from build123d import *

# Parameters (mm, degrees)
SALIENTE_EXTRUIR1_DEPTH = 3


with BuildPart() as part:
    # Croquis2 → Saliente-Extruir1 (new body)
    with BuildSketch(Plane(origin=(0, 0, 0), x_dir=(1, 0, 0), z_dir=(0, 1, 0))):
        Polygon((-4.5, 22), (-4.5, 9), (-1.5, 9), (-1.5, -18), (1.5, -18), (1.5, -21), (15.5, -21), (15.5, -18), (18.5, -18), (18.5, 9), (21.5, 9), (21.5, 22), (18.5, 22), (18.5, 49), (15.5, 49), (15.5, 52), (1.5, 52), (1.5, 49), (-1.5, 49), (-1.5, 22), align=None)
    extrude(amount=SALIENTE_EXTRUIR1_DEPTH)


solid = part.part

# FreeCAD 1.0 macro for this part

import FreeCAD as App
import Part
import Sketcher
Q = App.Units.Quantity


def add_polygon(sketch, points):
    """Adds a closed chain of lines whose ends are joined by coincident constraints."""
    first, n = sketch.GeometryCount, len(points)
    for a, b in zip(points, points[1:] + points[:1]):
        sketch.addGeometry(Part.LineSegment(App.Vector(*a, 0), App.Vector(*b, 0)), False)
    for i in range(n):
        sketch.addConstraint(Sketcher.Constraint("Coincident", first + i, 2, first + (i + 1) % n, 1))

doc = App.newDocument("Part")
params = doc.addObject("Spreadsheet::Sheet", "Params")
for row, (alias, value) in enumerate([
    ("sketch1_width", "3 mm"),
    ("sketch1_width2", "14 mm"),
    ("sketch1_height", "13 mm"),
    ("sketch1_height2", "27 mm"),
    ("pad1_length", "3 mm"),
], start=1):
    params.set(f"A{row}", alias)
    params.set(f"B{row}", "=" + value)
    params.setAlias(f"B{row}", alias)

body = doc.addObject("PartDesign::Body", "Body")

# Sketch on XZ plane
sketch1 = body.newObject("Sketcher::SketchObject", "Sketch")
sketch1.AttachmentSupport = (doc.getObject("XZ_Plane"), [""])
sketch1.MapMode = "FlatFace"
add_polygon(sketch1, [(-4.5, -22), (-4.5, -9), (-1.5, -9), (-1.5, 18), (1.5, 18), (1.5, 21), (15.5, 21), (15.5, 18), (18.5, 18), (18.5, -9), (21.5, -9), (21.5, -22), (18.5, -22), (18.5, -49), (15.5, -49), (15.5, -52), (1.5, -52), (1.5, -49), (-1.5, -49), (-1.5, -22)])  # lines 0-19
sketch1.addConstraint([
    Sketcher.Constraint("Vertical", 0),
    Sketcher.Constraint("Horizontal", 1),
    Sketcher.Constraint("Vertical", 2),
    Sketcher.Constraint("Horizontal", 3),
    Sketcher.Constraint("Vertical", 4),
    Sketcher.Constraint("Horizontal", 5),
    Sketcher.Constraint("Vertical", 6),
    Sketcher.Constraint("Horizontal", 7),
    Sketcher.Constraint("Vertical", 8),
    Sketcher.Constraint("Horizontal", 9),
    Sketcher.Constraint("Vertical", 10),
    Sketcher.Constraint("Horizontal", 11),
    Sketcher.Constraint("Vertical", 12),
    Sketcher.Constraint("Horizontal", 13),
    Sketcher.Constraint("Vertical", 14),
    Sketcher.Constraint("Horizontal", 15),
    Sketcher.Constraint("Vertical", 16),
    Sketcher.Constraint("Horizontal", 17),
    Sketcher.Constraint("Vertical", 18),
    Sketcher.Constraint("Horizontal", 19),
    Sketcher.Constraint("Horizontal", 3, 2, 6, 2),
    Sketcher.Constraint("Horizontal", 1, 2, 8, 2),
    Sketcher.Constraint("Horizontal", 13, 2, 16, 2),
    Sketcher.Constraint("Horizontal", 11, 2, 18, 2),
    Sketcher.Constraint("Vertical", 8, 2, 11, 2),
    Sketcher.Constraint("Vertical", 6, 2, 13, 2),
    Sketcher.Constraint("Vertical", 4, 2, 15, 2),
    Sketcher.Constraint("Vertical", 2, 2, 17, 2),
    Sketcher.Constraint("Equal", 1, 3),
    Sketcher.Constraint("Equal", 3, 7),
    Sketcher.Constraint("Equal", 7, 9),
    Sketcher.Constraint("Equal", 19, 4),
    Sketcher.Constraint("Equal", 8, 12),
    Sketcher.Constraint("Equal", 6, 14),
    Sketcher.Constraint("DistanceX", 1, 1, 1, 2, Q("3 mm")),
    Sketcher.Constraint("DistanceX", 5, 1, 5, 2, Q("14 mm")),
    Sketcher.Constraint("DistanceY", 0, 1, 0, 2, Q("13 mm")),
    Sketcher.Constraint("DistanceY", 2, 1, 2, 2, Q("27 mm")),
    Sketcher.Constraint("DistanceY", 0, 2, -1, 1, Q("9 mm")),
    Sketcher.Constraint("DistanceX", 0, 2, -1, 1, Q("4.5 mm")),
])
sketch1.setExpression("Constraints[54]", "Params.sketch1_width")
sketch1.setExpression("Constraints[55]", "Params.sketch1_width2")
sketch1.setExpression("Constraints[56]", "Params.sketch1_height")
sketch1.setExpression("Constraints[57]", "Params.sketch1_height2")
pad1 = body.newObject("PartDesign::Pad", "Pad")
pad1.Profile = sketch1
pad1.setExpression("Length", "Params.pad1_length")
pad1.Reversed = True

doc.recompute()
